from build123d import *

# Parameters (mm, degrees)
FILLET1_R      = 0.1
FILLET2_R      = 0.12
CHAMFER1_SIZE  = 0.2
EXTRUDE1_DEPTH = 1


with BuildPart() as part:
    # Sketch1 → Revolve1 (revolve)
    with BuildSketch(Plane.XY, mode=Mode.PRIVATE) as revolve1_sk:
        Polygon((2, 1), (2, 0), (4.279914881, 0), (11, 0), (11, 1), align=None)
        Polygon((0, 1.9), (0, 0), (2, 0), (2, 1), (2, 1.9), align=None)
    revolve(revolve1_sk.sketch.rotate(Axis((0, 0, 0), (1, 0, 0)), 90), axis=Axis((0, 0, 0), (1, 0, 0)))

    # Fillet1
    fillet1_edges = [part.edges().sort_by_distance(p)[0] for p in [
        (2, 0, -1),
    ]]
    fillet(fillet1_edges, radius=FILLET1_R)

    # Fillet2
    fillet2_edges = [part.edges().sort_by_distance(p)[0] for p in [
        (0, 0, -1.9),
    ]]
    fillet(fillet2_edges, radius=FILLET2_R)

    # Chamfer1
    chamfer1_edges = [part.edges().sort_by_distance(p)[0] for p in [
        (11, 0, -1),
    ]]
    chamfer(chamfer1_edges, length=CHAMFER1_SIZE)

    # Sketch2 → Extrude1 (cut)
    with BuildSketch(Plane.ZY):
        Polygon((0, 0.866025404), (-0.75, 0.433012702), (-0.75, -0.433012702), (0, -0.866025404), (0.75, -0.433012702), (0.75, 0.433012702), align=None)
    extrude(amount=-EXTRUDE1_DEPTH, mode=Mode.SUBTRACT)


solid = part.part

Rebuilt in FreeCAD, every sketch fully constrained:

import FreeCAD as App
import Part
import Sketcher
Q = App.Units.Quantity


def edges_at(feature, points):
    """Names of the edges that pass closest to the given points."""
    edges = feature.Shape.Edges
    near = lambda p: min(range(len(edges)), key=lambda i: edges[i].distToShape(Part.Vertex(*p))[0])
    return sorted({f"Edge{near(p) + 1}" for p in points})


def add_polygon(sketch, points):
    """Adds a closed chain of lines whose ends are joined by coincident constraints."""
    first, n = sketch.GeometryCount, len(points)
    for a, b in zip(points, points[1:] + points[:1]):
        sketch.addGeometry(Part.LineSegment(App.Vector(*a, 0), App.Vector(*b, 0)), False)
    for i in range(n):
        sketch.addConstraint(Sketcher.Constraint("Coincident", first + i, 2, first + (i + 1) % n, 1))

doc = App.newDocument("Part")
body = doc.addObject("PartDesign::Body", "Body")

# Sketch on XY plane
sketch1 = doc.addObject("Sketcher::SketchObject", "Sketch")
body.addObject(sketch1)
sketch1.AttachmentSupport = (doc.XY_Plane, [""])
sketch1.MapMode = "FlatFace"
add_polygon(sketch1, [(11, 0), (11, 1), (2, 1), (2, 1.9), (0, 1.9), (0, 0)])  # lines 0-5
sketch1.addConstraint([
    Sketcher.Constraint("Vertical", 0),
    Sketcher.Constraint("Horizontal", 1),
    Sketcher.Constraint("Vertical", 2),
    Sketcher.Constraint("Horizontal", 3),
    Sketcher.Constraint("Vertical", 4),
    Sketcher.Constraint("Horizontal", 5),
    Sketcher.Constraint("Coincident", 4, 2, -1, 1),
    Sketcher.Constraint("DistanceX", 1, 2, 1, 1, 9.0),
    Sketcher.Constraint("DistanceX", 3, 2, 3, 1, 2.0),
    Sketcher.Constraint("DistanceY", 0, 1, 0, 2, 1.0),
    Sketcher.Constraint("DistanceY", 2, 1, 2, 2, 0.9),
])
revolution = doc.addObject("PartDesign::Revolution", "Revolution")
body.addObject(revolution)
revolution.Profile = sketch1
revolution.ReferenceAxis = (sketch1, ["H_Axis"])
revolution.Angle = 360
doc.recompute()

fillet = doc.addObject("PartDesign::Fillet", "Fillet")
body.addObject(fillet)
fillet.Base = (revolution, edges_at(revolution, [(2, 0, -1)]))
fillet.Radius = 0.1
doc.recompute()

fillet2 = doc.addObject("PartDesign::Fillet", "Fillet001")
body.addObject(fillet2)
fillet2.Base = (fillet, edges_at(fillet, [(0, 0, -1.9)]))
fillet2.Radius = 0.12
doc.recompute()

chamfer = doc.addObject("PartDesign::Chamfer", "Chamfer")
body.addObject(chamfer)
chamfer.Base = (fillet2, edges_at(fillet2, [(11, 0, -1)]))
chamfer.Size = 0.2

# Sketch on YZ plane
sketch2 = doc.addObject("Sketcher::SketchObject", "Sketch001")
body.addObject(sketch2)
sketch2.AttachmentSupport = (doc.YZ_Plane, [""])
sketch2.MapMode = "FlatFace"
add_polygon(sketch2, [(0.9, 0), (0.4, -0.8), (-0.4, -0.8), (-0.9, 0), (-0.4, 0.8), (0.4, 0.8)])  # lines 0-5
sketch2.addConstraint([
    Sketcher.Constraint("Horizontal", 1),
    Sketcher.Constraint("Horizontal", 4),
    Sketcher.Constraint("Symmetric", 0, 2, 3, 2, -1, 1),
    Sketcher.Constraint("Symmetric", 2, 2, 5, 2, -1, 1),
    Sketcher.Constraint("PointOnObject", 2, 2, -1),
    Sketcher.Constraint("Parallel", 2, 5),
    Sketcher.Constraint("Vertical", 1, 2, 3, 2),
    Sketcher.Constraint("Angle", 0, Q("-120 deg")),
    Sketcher.Constraint("DistanceY", 1, 2, 3, 2, 1.5),
    Sketcher.Constraint("DistanceX", 1, 2, 1, 1, 0.866025),
])
pocket1 = doc.addObject("PartDesign::Pocket", "Pocket")
body.addObject(pocket1)
pocket1.Profile = sketch2
pocket1.Length = 1
pocket1.Reversed = True

doc.recompute()
